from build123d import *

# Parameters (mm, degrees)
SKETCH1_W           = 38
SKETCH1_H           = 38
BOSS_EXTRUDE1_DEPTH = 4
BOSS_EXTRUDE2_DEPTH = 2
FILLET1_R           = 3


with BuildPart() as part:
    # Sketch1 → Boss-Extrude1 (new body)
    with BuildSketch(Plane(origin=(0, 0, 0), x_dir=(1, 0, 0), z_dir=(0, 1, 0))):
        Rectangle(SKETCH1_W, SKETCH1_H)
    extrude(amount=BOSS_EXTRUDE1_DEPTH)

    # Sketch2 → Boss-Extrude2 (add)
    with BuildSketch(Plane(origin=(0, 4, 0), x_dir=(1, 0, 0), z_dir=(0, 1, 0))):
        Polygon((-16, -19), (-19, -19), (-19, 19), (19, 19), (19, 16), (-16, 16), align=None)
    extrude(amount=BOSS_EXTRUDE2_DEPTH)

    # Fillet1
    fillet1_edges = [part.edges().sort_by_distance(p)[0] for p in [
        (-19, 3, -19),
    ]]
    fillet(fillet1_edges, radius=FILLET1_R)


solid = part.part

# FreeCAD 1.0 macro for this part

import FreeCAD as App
import Part
import Sketcher
from FreeCAD import Vector


def edges_at(feature, points):
    """Names of the edges that pass closest to the given points."""
    edges = feature.Shape.Edges
    near = lambda p: min(range(len(edges)), key=lambda i: edges[i].distToShape(Part.Vertex(*p))[0])
    return sorted({f"Edge{near(p) + 1}" for p in points})

doc = App.newDocument("Part")
body = doc.addObject("PartDesign::Body", "Body")

sketch1 = body.newObject("Sketcher::SketchObject", "Sketch")
sketch1.AttachmentSupport = (doc.getObject("XZ_Plane"), [""])
sketch1.MapMode = "FlatFace"
sketch1.addGeometry([
    Part.LineSegment(Vector(-19, -19, 0), Vector(-19, 19, 0)),
    Part.LineSegment(Vector(-19, 19, 0), Vector(19, 19, 0)),
    Part.LineSegment(Vector(19, 19, 0), Vector(19, -19, 0)),
    Part.LineSegment(Vector(19, -19, 0), Vector(-19, -19, 0)),
], False)
sketch1.addConstraint([
    Sketcher.Constraint("Coincident", 0, 2, 1, 1),
    Sketcher.Constraint("Coincident", 1, 2, 2, 1),
    Sketcher.Constraint("Coincident", 2, 2, 3, 1),
    Sketcher.Constraint("Coincident", 3, 2, 0, 1),
    Sketcher.Constraint("Vertical", 0),
    Sketcher.Constraint("Horizontal", 1),
    Sketcher.Constraint("Vertical", 2),
    Sketcher.Constraint("Horizontal", 3),
    Sketcher.Constraint("Symmetric", 0, 2, 2, 2, -1, 1),
    Sketcher.Constraint("Equal", 3, 0),
    Sketcher.Constraint("DistanceX", 1, 1, 1, 2, 38.0),
])
pad1 = body.newObject("PartDesign::Pad", "Pad")
pad1.Profile = sketch1
pad1.Length = 4
pad1.Reversed = True

sketch2 = body.newObject("Sketcher::SketchObject", "Sketch001")
sketch2.AttachmentSupport = (doc.getObject("XZ_Plane"), [""])
sketch2.MapMode = "FlatFace"
sketch2.AttachmentOffset = App.Placement(Vector(0, 0, -4), App.Rotation())
sketch2.addGeometry([
    Part.LineSegment(Vector(-19, 19, 0), Vector(-16, 19, 0)),
    Part.LineSegment(Vector(-16, 19, 0), Vector(-16, -16, 0)),
    Part.LineSegment(Vector(-16, -16, 0), Vector(19, -16, 0)),
    Part.LineSegment(Vector(19, -16, 0), Vector(19, -19, 0)),
    Part.LineSegment(Vector(19, -19, 0), Vector(-19, -19, 0)),
    Part.LineSegment(Vector(-19, -19, 0), Vector(-19, 19, 0)),
], False)
sketch2.addConstraint([
    Sketcher.Constraint("Coincident", 0, 2, 1, 1),
    Sketcher.Constraint("Coincident", 1, 2, 2, 1),
    Sketcher.Constraint("Coincident", 2, 2, 3, 1),
    Sketcher.Constraint("Coincident", 3, 2, 4, 1),
    Sketcher.Constraint("Coincident", 4, 2, 5, 1),
    Sketcher.Constraint("Coincident", 5, 2, 0, 1),
    Sketcher.Constraint("Horizontal", 0),
    Sketcher.Constraint("Vertical", 1),
    Sketcher.Constraint("Horizontal", 2),
    Sketcher.Constraint("Vertical", 3),
    Sketcher.Constraint("Horizontal", 4),
    Sketcher.Constraint("Vertical", 5),
    Sketcher.Constraint("Symmetric", 3, 2, 5, 2, -1, 1),
    Sketcher.Constraint("Equal", 2, 1),
    Sketcher.Constraint("Equal", 0, 3),
    Sketcher.Constraint("DistanceX", 0, 1, 0, 2, 3.0),
    Sketcher.Constraint("DistanceX", 2, 1, 2, 2, 35.0),
])
pad2 = body.newObject("PartDesign::Pad", "Pad001")
pad2.Profile = sketch2
pad2.Length = 2
pad2.Reversed = True
doc.recompute()

fillet = body.newObject("PartDesign::Fillet", "Fillet")
fillet.Base = (pad2, edges_at(pad2, [(-19, 3, -19)]))
fillet.Radius = 3

doc.recompute()
